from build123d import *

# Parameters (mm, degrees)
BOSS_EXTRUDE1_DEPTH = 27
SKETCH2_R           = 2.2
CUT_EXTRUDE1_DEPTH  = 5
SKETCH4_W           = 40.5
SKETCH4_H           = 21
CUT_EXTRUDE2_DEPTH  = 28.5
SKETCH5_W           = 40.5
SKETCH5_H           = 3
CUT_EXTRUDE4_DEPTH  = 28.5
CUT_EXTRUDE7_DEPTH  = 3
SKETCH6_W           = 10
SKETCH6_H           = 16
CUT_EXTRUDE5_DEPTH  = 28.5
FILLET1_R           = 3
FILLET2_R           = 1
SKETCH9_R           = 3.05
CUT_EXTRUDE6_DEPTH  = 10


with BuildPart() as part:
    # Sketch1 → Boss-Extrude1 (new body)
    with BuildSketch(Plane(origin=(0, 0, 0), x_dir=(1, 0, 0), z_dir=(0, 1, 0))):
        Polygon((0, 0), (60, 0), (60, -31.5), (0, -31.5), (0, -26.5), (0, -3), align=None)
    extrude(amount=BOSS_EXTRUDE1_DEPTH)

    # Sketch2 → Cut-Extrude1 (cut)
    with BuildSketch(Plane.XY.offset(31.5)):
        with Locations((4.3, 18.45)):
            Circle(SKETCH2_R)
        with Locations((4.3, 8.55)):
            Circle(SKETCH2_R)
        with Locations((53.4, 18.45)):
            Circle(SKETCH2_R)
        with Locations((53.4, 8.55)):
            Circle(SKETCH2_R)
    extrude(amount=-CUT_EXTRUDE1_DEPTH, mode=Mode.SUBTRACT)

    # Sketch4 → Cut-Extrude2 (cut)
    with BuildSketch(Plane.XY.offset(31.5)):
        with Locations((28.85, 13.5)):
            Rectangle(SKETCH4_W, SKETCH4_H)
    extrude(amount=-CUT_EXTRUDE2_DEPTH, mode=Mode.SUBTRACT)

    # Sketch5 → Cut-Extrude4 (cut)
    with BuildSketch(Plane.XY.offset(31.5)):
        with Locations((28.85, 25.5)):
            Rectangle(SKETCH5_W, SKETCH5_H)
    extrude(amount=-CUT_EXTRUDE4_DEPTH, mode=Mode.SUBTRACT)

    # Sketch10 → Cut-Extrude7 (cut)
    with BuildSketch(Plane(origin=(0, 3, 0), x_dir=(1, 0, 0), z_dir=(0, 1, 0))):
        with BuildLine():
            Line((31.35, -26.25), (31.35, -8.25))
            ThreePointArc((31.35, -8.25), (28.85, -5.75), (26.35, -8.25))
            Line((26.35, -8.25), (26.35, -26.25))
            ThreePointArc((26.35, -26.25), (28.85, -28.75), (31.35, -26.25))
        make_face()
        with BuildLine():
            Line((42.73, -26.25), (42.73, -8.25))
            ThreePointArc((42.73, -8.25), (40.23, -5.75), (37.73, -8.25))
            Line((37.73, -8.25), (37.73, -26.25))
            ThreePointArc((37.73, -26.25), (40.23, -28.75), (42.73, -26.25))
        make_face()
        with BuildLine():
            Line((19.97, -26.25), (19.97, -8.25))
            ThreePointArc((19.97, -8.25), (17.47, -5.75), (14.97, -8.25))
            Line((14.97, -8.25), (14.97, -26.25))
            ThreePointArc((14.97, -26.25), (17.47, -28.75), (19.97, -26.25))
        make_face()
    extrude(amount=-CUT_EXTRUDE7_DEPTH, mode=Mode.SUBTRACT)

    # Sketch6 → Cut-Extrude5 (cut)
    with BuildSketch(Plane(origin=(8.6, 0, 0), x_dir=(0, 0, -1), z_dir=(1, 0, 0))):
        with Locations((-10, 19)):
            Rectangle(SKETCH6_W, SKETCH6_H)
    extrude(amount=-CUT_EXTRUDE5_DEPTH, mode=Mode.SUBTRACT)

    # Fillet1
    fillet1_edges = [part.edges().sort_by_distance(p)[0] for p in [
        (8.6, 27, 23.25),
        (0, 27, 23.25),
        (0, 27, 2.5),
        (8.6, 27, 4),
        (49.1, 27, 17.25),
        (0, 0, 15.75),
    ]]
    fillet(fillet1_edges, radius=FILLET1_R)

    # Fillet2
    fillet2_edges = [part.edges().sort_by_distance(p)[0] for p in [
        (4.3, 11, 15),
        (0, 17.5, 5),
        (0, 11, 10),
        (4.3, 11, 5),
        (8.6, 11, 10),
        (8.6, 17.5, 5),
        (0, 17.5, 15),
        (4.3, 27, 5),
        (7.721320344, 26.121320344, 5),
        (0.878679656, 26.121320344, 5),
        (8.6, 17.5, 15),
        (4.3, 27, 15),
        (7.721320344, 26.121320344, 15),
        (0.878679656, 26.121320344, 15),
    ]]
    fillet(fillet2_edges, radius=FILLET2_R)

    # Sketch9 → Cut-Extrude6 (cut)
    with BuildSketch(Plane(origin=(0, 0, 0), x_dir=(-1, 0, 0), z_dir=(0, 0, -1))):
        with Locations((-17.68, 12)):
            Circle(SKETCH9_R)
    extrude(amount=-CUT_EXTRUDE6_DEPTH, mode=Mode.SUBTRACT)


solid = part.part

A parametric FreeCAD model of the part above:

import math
import FreeCAD as App
import Part
import Sketcher


def edges_at(feature, points):
    """Names of the edges that pass closest to the given points."""
    edges = feature.Shape.Edges
    near = lambda p: min(range(len(edges)), key=lambda i: edges[i].distToShape(Part.Vertex(*p))[0])
    return sorted({f"Edge{near(p) + 1}" for p in points})


def add_polygon(sketch, points):
    """Adds a closed chain of lines whose ends are joined by coincident constraints."""
    first, n = sketch.GeometryCount, len(points)
    for a, b in zip(points, points[1:] + points[:1]):
        sketch.addGeometry(Part.LineSegment(App.Vector(*a, 0), App.Vector(*b, 0)), False)
    for i in range(n):
        sketch.addConstraint(Sketcher.Constraint("Coincident", first + i, 2, first + (i + 1) % n, 1))

doc = App.newDocument("Part")
body = doc.addObject("PartDesign::Body", "Body")

sketch1 = body.newObject("Sketcher::SketchObject", "Sketch")
sketch1.AttachmentSupport = (doc.getObject("XZ_Plane"), [""])
sketch1.MapMode = "FlatFace"
add_polygon(sketch1, [(60, 0), (0, 0), (0, 32), (60, 32)])
sketch1.addConstraint([
    Sketcher.Constraint("Horizontal", 0),
    Sketcher.Constraint("Vertical", 1),
    Sketcher.Constraint("Horizontal", 2),
    Sketcher.Constraint("Vertical", 3),
    Sketcher.Constraint("Coincident", 0, 2, -1, 1),
    Sketcher.Constraint("DistanceX", 0, 2, 0, 1, 60.0),
    Sketcher.Constraint("DistanceY", 1, 1, 1, 2, 31.5),
])
pad1 = body.newObject("PartDesign::Pad", "Pad")
pad1.Profile = sketch1
pad1.Length = 27
pad1.Reversed = True

sketch2 = body.newObject("Sketcher::SketchObject", "Sketch001")
sketch2.AttachmentSupport = (doc.getObject("XY_Plane"), [""])
sketch2.MapMode = "FlatFace"
sketch2.AttachmentOffset = App.Placement(App.Vector(0, 0, 31.5), App.Rotation())
sketch2.addGeometry([
    Part.Circle(App.Vector(4.3, 18.4, 0), App.Vector(0, 0, 1), 2.2),
    Part.Circle(App.Vector(4.3, 8.6, 0), App.Vector(0, 0, 1), 2.2),
    Part.Circle(App.Vector(53.4, 18.4, 0), App.Vector(0, 0, 1), 2.2),
    Part.Circle(App.Vector(53.4, 8.6, 0), App.Vector(0, 0, 1), 2.2),
], False)
sketch2.addConstraint([
    Sketcher.Constraint("Equal", 0, 1),
    Sketcher.Constraint("Equal", 1, 2),
    Sketcher.Constraint("Equal", 2, 3),
    Sketcher.Constraint("Horizontal", 0, 3, 2, 3),
    Sketcher.Constraint("Horizontal", 1, 3, 3, 3),
    Sketcher.Constraint("Vertical", 0, 3, 1, 3),
    Sketcher.Constraint("Vertical", 2, 3, 3, 3),
    Sketcher.Constraint("Diameter", 0, 4.4),
    Sketcher.Constraint("DistanceX", -1, 1, 0, 3, 4.3),
    Sketcher.Constraint("DistanceX", -1, 1, 2, 3, 53.4),
    Sketcher.Constraint("DistanceY", 1, 3, 0, 3, 9.9),
    Sketcher.Constraint("DistanceY", -1, 1, 0, 3, 18.45),
])
pocket1 = body.newObject("PartDesign::Pocket", "Pocket")
pocket1.Profile = sketch2
pocket1.Length = 5

sketch3 = body.newObject("Sketcher::SketchObject", "Sketch002")
sketch3.AttachmentSupport = (doc.getObject("XY_Plane"), [""])
sketch3.MapMode = "FlatFace"
sketch3.AttachmentOffset = App.Placement(App.Vector(0, 0, 31.5), App.Rotation())
add_polygon(sketch3, [(9, 24), (9, 3), (49, 3), (49, 24)])
sketch3.addConstraint([
    Sketcher.Constraint("Vertical", 0),
    Sketcher.Constraint("Horizontal", 1),
    Sketcher.Constraint("Vertical", 2),
    Sketcher.Constraint("Horizontal", 3),
    Sketcher.Constraint("DistanceY", 0, 2, 0, 1, 21.0),
    Sketcher.Constraint("DistanceX", 1, 1, 1, 2, 40.5),
    Sketcher.Constraint("DistanceY", -1, 1, 0, 2, 3.0),
    Sketcher.Constraint("DistanceX", -1, 1, 0, 2, 8.6),
])
pocket2 = body.newObject("PartDesign::Pocket", "Pocket001")
pocket2.Profile = sketch3
pocket2.Length = 28.5

sketch4 = body.newObject("Sketcher::SketchObject", "Sketch003")
sketch4.AttachmentSupport = (doc.getObject("XY_Plane"), [""])
sketch4.MapMode = "FlatFace"
sketch4.AttachmentOffset = App.Placement(App.Vector(0, 0, 31.5), App.Rotation())
add_polygon(sketch4, [(8.6, 27), (8.6, 24), (49.1, 24), (49.1, 27)])
sketch4.addConstraint([
    Sketcher.Constraint("Vertical", 0),
    Sketcher.Constraint("Horizontal", 1),
    Sketcher.Constraint("Vertical", 2),
    Sketcher.Constraint("Horizontal", 3),
    Sketcher.Constraint("DistanceY", 0, 2, 0, 1, 3.0),
    Sketcher.Constraint("DistanceX", 1, 1, 1, 2, 40.5),
    Sketcher.Constraint("DistanceY", -1, 1, 0, 2, 24.0),
    Sketcher.Constraint("DistanceX", -1, 1, 0, 2, 8.6),
])
pocket3 = body.newObject("PartDesign::Pocket", "Pocket002")
pocket3.Profile = sketch4
pocket3.Length = 28.5

sketch5 = body.newObject("Sketcher::SketchObject", "Sketch004")
sketch5.AttachmentSupport = (doc.getObject("XZ_Plane"), [""])
sketch5.MapMode = "FlatFace"
sketch5.AttachmentOffset = App.Placement(App.Vector(0, 0, -3), App.Rotation())
sketch5.addGeometry([
    Part.LineSegment(App.Vector(31.4, 26.2, 0), App.Vector(31.4, 8.2, 0)),
    Part.ArcOfCircle(Part.Circle(App.Vector(28.9, 8.2, 0), App.Vector(0, 0, 1), 2.5), math.radians(180), math.radians(360)),
    Part.LineSegment(App.Vector(26.4, 8.2, 0), App.Vector(26.4, 26.2, 0)),
    Part.ArcOfCircle(Part.Circle(App.Vector(28.9, 26.2, 0), App.Vector(0, 0, 1), 2.5), math.radians(0), math.radians(180)),
    Part.LineSegment(App.Vector(42.7, 26.2, 0), App.Vector(42.7, 8.2, 0)),
    Part.ArcOfCircle(Part.Circle(App.Vector(40.2, 8.2, 0), App.Vector(0, 0, 1), 2.5), math.radians(180), math.radians(360)),
    Part.LineSegment(App.Vector(37.7, 8.2, 0), App.Vector(37.7, 26.2, 0)),
    Part.ArcOfCircle(Part.Circle(App.Vector(40.2, 26.2, 0), App.Vector(0, 0, 1), 2.5), math.radians(0), math.radians(180)),
    Part.LineSegment(App.Vector(20, 26.2, 0), App.Vector(20, 8.2, 0)),
    Part.ArcOfCircle(Part.Circle(App.Vector(17.5, 8.2, 0), App.Vector(0, 0, 1), 2.5), math.radians(180), math.radians(360)),
    Part.LineSegment(App.Vector(15, 8.2, 0), App.Vector(15, 26.2, 0)),
    Part.ArcOfCircle(Part.Circle(App.Vector(17.5, 26.2, 0), App.Vector(0, 0, 1), 2.5), math.radians(0), math.radians(180)),
], False)
sketch5.addConstraint([
    Sketcher.Constraint("Tangent", 0, 2, 1, 2),
    Sketcher.Constraint("Tangent", 1, 1, 2, 1),
    Sketcher.Constraint("Tangent", 2, 2, 3, 2),
    Sketcher.Constraint("Tangent", 3, 1, 0, 1),
    Sketcher.Constraint("Tangent", 4, 2, 5, 2),
    Sketcher.Constraint("Tangent", 5, 1, 6, 1),
    Sketcher.Constraint("Tangent", 6, 2, 7, 2),
    Sketcher.Constraint("Tangent", 7, 1, 4, 1),
    Sketcher.Constraint("Tangent", 8, 2, 9, 2),
    Sketcher.Constraint("Tangent", 9, 1, 10, 1),
    Sketcher.Constraint("Tangent", 10, 2, 11, 2),
    Sketcher.Constraint("Tangent", 11, 1, 8, 1),
    Sketcher.Constraint("Vertical", 0),
    Sketcher.Constraint("Vertical", 2),
    Sketcher.Constraint("Vertical", 4),
    Sketcher.Constraint("Vertical", 6),
    Sketcher.Constraint("Vertical", 8),
    Sketcher.Constraint("Vertical", 10),
    Sketcher.Constraint("Equal", 3, 5),
    Sketcher.Constraint("Equal", 7, 9),
    Sketcher.Constraint("Horizontal", 1, 3, 5, 3),
    Sketcher.Constraint("Horizontal", 3, 3, 7, 3),
    Sketcher.Constraint("Horizontal", 5, 3, 9, 3),
    Sketcher.Constraint("Horizontal", 7, 3, 11, 3),
    Sketcher.Constraint("Radius", 1, 2.5),
    Sketcher.Constraint("DistanceY", 0, 2, 0, 1, 18.0),
    Sketcher.Constraint("DistanceX", -1, 1, 1, 3, 28.85),
    Sketcher.Constraint("DistanceY", -1, 1, 1, 3, 8.25),
    Sketcher.Constraint("DistanceX", -1, 1, 5, 3, 40.23),
    Sketcher.Constraint("DistanceX", -1, 1, 9, 3, 17.47),
])
pocket4 = body.newObject("PartDesign::Pocket", "Pocket003")
pocket4.Profile = sketch5
pocket4.Length = 3
pocket4.Reversed = True

sketch6 = body.newObject("Sketcher::SketchObject", "Sketch005")
sketch6.AttachmentSupport = (doc.getObject("YZ_Plane"), [""])
sketch6.MapMode = "FlatFace"
sketch6.AttachmentOffset = App.Placement(App.Vector(0, 0, 8.6), App.Rotation())
add_polygon(sketch6, [(27, 15), (11, 15), (11, 5), (27, 5)])
sketch6.addConstraint([
    Sketcher.Constraint("Horizontal", 0),
    Sketcher.Constraint("Vertical", 1),
    Sketcher.Constraint("Horizontal", 2),
    Sketcher.Constraint("Vertical", 3),
    Sketcher.Constraint("DistanceX", 0, 2, 0, 1, 16.0),
    Sketcher.Constraint("DistanceY", 1, 2, 1, 1, 10.0),
    Sketcher.Constraint("DistanceX", -1, 1, 0, 2, 11.0),
    Sketcher.Constraint("DistanceY", -1, 1, 0, 2, 15.0),
])
pocket5 = body.newObject("PartDesign::Pocket", "Pocket004")
pocket5.Profile = sketch6
pocket5.Length = 28.5
doc.recompute()

fillet = body.newObject("PartDesign::Fillet", "Fillet")
fillet.Base = (pocket5, edges_at(pocket5, [
    (8.6, 27, 23.25),
    (0, 27, 23.25),
    (0, 27, 2.5),
    (8.6, 27, 4),
    (49.1, 27, 17.25),
    (0, 0, 15.75),
]))
fillet.Radius = 3
doc.recompute()

fillet2 = body.newObject("PartDesign::Fillet", "Fillet001")
fillet2.Base = (fillet, edges_at(fillet, [
    (4.3, 11, 15),
    (0, 17.5, 5),
    (0, 11, 10),
    (4.3, 11, 5),
    (8.6, 11, 10),
    (8.6, 17.5, 5),
    (0, 17.5, 15),
    (4.3, 27, 5),
    (7.721, 26.121, 5),
    (0.879, 26.121, 5),
    (8.6, 17.5, 15),
    (4.3, 27, 15),
    (7.721, 26.121, 15),
    (0.879, 26.121, 15),
]))
fillet2.Radius = 1

sketch7 = body.newObject("Sketcher::SketchObject", "Sketch006")
sketch7.AttachmentSupport = (doc.getObject("XY_Plane"), [""])
sketch7.MapMode = "FlatFace"
sketch7.addGeometry(Part.Circle(App.Vector(17.7, 12, 0), App.Vector(0, 0, 1), 3), False)
sketch7.addConstraint([
    Sketcher.Constraint("Diameter", 0, 6.1),
    Sketcher.Constraint("DistanceY", -1, 1, 0, 3, 12.0),
    Sketcher.Constraint("DistanceX", -1, 1, 0, 3, 17.68),
])
pocket6 = body.newObject("PartDesign::Pocket", "Pocket005")
pocket6.Profile = sketch7
pocket6.Length = 10
pocket6.Reversed = True

doc.recompute()
